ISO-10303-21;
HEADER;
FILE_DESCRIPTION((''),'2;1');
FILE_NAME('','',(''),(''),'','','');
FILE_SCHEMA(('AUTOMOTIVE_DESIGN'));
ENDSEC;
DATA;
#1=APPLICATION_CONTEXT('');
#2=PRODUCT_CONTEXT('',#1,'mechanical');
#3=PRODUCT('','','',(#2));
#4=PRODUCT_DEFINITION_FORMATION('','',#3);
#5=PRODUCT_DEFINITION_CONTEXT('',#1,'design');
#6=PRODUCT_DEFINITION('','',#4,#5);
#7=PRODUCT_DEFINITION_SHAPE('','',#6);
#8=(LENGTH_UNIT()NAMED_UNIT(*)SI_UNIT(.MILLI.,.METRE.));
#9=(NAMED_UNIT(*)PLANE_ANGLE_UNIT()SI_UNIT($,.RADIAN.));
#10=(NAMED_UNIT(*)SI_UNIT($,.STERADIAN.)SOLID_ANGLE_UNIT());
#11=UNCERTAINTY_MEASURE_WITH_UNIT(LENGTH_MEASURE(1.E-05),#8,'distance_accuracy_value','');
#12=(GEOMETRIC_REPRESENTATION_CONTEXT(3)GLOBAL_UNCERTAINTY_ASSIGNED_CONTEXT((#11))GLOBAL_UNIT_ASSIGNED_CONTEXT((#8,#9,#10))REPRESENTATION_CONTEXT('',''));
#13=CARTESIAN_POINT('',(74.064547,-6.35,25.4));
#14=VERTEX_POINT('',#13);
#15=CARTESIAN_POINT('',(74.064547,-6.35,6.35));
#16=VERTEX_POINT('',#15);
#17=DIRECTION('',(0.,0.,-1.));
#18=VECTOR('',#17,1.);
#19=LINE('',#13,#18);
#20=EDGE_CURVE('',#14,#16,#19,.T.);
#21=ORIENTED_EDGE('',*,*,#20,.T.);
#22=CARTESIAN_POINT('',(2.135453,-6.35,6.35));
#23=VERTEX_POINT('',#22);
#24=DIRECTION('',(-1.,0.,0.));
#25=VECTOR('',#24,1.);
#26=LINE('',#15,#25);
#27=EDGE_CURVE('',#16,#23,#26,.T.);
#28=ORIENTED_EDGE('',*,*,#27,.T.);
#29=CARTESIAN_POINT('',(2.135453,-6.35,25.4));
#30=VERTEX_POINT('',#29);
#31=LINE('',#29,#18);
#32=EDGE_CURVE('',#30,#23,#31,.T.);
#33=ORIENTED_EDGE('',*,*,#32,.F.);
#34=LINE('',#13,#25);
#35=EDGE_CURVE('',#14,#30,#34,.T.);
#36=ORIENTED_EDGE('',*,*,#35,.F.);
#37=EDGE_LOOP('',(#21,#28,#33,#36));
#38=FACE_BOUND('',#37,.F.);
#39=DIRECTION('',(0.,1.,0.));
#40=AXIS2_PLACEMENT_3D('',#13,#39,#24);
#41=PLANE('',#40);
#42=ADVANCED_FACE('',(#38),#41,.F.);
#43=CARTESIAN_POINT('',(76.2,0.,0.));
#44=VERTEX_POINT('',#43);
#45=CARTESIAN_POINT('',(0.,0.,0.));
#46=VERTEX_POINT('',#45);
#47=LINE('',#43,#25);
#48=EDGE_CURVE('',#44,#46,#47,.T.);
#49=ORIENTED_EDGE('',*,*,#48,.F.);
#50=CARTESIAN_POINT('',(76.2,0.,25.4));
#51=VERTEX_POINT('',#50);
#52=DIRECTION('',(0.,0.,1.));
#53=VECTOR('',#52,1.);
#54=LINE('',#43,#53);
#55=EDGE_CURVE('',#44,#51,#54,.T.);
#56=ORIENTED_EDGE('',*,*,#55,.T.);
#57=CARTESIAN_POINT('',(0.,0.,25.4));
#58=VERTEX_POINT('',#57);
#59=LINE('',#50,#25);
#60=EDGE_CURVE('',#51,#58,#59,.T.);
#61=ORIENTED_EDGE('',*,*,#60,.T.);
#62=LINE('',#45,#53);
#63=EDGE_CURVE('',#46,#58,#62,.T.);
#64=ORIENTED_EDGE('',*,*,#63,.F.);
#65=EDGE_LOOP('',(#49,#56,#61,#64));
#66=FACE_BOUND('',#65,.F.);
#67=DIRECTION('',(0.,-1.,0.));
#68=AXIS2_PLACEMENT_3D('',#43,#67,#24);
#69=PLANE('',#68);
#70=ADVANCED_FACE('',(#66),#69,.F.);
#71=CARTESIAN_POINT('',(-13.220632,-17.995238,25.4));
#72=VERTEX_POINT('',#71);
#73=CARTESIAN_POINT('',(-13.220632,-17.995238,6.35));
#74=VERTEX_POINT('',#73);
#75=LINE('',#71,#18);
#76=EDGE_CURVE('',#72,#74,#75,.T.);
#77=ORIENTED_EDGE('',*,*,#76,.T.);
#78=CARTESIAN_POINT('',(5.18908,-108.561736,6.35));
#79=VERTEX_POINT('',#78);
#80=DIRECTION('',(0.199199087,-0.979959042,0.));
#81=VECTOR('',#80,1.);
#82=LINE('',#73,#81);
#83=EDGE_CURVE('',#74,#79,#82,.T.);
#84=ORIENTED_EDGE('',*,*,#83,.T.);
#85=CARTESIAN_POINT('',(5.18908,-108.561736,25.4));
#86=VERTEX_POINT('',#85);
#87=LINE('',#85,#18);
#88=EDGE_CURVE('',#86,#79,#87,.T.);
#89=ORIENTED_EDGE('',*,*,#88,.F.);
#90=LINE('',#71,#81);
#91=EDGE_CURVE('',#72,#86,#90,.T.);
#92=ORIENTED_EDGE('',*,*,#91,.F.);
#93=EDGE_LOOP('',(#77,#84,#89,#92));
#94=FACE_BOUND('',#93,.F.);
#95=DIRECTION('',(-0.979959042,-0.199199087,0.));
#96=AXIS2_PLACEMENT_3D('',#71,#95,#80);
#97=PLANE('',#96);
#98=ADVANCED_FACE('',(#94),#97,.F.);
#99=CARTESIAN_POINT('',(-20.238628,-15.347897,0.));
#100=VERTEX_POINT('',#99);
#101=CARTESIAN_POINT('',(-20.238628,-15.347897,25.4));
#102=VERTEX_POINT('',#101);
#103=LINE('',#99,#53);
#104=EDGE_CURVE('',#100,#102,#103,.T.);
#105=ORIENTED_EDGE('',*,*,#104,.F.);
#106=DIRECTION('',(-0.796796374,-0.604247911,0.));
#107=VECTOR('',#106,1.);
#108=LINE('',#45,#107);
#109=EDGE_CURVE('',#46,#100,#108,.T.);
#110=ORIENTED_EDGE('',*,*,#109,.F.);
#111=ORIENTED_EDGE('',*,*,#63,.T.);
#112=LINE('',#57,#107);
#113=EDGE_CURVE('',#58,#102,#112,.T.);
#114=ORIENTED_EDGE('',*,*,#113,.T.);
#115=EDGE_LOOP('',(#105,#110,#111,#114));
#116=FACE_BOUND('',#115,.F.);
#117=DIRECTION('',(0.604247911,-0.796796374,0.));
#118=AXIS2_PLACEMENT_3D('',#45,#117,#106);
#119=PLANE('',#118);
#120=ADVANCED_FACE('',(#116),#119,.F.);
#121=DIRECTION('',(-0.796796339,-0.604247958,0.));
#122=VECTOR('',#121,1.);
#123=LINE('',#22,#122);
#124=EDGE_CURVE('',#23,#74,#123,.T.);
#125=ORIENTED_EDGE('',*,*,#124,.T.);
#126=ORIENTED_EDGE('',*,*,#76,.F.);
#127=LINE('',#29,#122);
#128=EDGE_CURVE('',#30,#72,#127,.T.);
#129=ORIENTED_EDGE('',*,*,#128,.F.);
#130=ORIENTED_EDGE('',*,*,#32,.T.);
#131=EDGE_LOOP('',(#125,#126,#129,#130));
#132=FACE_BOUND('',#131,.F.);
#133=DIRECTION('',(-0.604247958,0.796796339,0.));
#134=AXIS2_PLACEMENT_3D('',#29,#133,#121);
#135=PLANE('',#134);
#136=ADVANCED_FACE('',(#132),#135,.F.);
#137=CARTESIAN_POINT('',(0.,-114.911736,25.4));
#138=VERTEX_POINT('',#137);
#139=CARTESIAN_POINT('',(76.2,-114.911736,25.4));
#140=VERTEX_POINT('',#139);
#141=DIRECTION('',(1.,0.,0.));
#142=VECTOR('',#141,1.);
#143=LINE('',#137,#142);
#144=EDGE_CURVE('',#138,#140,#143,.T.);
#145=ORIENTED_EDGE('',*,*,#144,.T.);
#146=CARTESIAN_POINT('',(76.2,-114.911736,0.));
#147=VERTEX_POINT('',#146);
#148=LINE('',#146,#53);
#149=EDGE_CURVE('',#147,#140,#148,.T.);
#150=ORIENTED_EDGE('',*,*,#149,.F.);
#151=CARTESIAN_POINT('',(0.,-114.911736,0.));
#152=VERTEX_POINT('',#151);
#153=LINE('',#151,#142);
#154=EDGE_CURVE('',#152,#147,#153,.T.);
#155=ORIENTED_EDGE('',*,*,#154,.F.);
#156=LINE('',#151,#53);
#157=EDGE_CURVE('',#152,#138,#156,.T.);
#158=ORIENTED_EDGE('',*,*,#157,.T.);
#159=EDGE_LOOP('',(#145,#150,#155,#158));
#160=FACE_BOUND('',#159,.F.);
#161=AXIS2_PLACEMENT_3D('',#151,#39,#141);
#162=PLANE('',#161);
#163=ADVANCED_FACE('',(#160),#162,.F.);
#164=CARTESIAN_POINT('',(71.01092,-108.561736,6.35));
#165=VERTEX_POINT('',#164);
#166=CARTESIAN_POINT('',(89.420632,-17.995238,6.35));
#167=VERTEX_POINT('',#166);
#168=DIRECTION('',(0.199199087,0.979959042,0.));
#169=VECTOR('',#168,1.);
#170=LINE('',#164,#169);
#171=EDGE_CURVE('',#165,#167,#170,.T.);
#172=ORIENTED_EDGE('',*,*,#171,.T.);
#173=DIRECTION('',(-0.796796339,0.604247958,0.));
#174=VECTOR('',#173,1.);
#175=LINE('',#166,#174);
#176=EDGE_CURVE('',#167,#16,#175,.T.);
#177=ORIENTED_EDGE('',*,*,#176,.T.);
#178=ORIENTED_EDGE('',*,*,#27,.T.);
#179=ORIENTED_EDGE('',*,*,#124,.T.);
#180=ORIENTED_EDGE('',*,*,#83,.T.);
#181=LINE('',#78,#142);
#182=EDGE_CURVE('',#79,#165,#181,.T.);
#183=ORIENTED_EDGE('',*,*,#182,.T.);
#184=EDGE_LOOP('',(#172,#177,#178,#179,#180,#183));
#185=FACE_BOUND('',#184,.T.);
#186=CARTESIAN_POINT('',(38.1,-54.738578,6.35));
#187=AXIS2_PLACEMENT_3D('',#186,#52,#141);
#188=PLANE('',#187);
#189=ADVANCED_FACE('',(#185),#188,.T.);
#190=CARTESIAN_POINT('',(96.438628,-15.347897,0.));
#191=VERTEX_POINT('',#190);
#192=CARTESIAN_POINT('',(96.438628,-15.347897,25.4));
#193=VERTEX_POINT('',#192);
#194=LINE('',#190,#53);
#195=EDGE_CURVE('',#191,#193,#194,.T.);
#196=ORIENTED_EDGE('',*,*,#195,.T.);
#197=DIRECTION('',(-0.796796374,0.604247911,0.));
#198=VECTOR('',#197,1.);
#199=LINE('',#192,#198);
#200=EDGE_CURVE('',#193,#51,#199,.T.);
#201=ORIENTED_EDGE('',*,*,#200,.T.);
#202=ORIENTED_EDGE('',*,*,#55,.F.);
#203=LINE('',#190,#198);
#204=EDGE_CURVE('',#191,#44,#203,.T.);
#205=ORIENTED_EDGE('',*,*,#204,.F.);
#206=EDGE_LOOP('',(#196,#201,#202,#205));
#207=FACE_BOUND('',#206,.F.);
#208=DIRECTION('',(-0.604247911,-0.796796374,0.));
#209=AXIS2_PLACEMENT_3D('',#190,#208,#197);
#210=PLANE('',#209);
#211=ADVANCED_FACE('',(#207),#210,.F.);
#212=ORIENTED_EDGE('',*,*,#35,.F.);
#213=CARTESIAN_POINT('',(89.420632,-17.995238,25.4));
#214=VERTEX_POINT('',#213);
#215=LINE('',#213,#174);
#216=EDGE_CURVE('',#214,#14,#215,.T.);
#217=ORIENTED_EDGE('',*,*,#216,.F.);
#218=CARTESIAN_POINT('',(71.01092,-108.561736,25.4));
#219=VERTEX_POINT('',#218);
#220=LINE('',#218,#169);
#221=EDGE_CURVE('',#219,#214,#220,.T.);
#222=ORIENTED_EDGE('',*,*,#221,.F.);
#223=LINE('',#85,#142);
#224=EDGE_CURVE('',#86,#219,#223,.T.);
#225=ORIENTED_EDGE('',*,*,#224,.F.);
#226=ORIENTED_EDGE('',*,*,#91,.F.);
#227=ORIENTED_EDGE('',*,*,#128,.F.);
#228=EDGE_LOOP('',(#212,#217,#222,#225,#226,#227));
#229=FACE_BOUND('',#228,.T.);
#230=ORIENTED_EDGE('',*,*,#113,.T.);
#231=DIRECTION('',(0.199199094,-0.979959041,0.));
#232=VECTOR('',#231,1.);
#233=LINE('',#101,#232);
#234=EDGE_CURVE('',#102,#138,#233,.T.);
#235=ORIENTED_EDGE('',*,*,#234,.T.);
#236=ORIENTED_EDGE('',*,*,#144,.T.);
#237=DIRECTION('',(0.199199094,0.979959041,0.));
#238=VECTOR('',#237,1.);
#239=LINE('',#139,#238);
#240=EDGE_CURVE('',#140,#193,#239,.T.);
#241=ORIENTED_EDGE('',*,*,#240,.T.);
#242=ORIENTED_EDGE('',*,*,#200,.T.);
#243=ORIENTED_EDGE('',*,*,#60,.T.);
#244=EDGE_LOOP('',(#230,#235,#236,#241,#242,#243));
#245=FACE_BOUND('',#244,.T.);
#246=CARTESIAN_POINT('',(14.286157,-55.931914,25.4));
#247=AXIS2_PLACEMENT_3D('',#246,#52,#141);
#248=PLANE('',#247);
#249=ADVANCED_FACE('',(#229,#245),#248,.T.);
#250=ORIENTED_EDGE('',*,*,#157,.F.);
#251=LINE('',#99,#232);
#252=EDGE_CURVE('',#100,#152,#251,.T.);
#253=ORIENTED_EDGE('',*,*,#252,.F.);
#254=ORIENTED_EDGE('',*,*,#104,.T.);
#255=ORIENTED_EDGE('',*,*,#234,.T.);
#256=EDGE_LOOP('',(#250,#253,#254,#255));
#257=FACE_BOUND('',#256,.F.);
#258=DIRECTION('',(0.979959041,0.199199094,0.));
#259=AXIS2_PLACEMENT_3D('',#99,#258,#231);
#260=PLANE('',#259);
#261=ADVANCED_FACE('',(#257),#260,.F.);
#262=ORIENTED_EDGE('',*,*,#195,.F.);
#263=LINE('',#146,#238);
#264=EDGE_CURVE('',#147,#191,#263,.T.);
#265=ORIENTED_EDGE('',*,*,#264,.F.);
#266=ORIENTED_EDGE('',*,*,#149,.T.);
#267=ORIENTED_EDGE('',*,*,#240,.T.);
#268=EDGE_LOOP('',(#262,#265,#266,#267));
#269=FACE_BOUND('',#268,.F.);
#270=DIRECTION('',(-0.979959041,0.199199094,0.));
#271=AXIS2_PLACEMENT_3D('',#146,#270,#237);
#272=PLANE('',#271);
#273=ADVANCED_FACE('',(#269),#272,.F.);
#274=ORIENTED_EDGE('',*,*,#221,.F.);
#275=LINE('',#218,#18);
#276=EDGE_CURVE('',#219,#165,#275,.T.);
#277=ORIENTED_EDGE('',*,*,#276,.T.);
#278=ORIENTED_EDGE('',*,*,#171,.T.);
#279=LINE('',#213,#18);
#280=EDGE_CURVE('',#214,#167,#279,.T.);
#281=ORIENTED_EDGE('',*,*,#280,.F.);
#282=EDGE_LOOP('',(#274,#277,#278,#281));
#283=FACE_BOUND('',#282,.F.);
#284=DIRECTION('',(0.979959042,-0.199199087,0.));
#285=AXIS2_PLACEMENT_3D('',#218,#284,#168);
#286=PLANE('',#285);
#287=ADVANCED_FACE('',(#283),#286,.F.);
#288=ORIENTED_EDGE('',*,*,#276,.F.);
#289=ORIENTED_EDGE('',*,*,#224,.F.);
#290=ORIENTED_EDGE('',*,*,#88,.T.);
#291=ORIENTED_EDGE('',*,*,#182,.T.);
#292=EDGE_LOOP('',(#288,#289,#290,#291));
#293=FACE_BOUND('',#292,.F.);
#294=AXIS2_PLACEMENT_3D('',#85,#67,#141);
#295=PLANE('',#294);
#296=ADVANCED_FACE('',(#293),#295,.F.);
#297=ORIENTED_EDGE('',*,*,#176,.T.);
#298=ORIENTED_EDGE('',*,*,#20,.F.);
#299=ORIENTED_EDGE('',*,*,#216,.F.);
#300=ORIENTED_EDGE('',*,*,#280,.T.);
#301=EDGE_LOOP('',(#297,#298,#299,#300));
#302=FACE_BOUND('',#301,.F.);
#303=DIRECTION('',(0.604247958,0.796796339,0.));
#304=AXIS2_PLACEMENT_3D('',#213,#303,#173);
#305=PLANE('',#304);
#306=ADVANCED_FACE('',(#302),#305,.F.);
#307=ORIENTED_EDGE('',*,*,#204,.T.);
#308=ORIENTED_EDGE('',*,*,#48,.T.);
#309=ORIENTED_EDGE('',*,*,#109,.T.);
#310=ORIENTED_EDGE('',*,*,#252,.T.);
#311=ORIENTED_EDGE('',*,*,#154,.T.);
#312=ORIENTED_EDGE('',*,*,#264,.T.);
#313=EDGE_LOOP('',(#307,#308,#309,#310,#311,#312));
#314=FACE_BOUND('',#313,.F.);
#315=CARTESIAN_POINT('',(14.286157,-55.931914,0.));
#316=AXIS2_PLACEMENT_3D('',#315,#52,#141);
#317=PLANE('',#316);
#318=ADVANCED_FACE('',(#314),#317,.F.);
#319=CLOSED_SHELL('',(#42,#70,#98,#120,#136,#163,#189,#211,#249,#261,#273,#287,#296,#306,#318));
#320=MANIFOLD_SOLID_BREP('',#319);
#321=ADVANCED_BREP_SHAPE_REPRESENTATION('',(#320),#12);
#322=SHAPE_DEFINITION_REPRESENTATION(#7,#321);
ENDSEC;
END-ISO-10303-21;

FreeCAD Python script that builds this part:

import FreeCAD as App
import Part
import Sketcher

V = App.Vector
Q = App.Units.Quantity


def add_polygon(sketch, points):
    """Adds a closed chain of lines whose ends are joined by coincident constraints."""
    first, n = sketch.GeometryCount, len(points)
    for a, b in zip(points, points[1:] + points[:1]):
        sketch.addGeometry(Part.LineSegment(App.Vector(*a, 0), App.Vector(*b, 0)), False)
    for i in range(n):
        sketch.addConstraint(Sketcher.Constraint("Coincident", first + i, 2, first + (i + 1) % n, 1))

doc = App.newDocument("Part")
body = doc.addObject("PartDesign::Body", "Body")

# Sketch on XY plane
sketch1 = doc.addObject("Sketcher::SketchObject", "Sketch")
body.addObject(sketch1)
sketch1.AttachmentSupport = (doc.XY_Plane, [""])
sketch1.MapMode = "FlatFace"
add_polygon(sketch1, [(0, 0), (-20, -15), (0, -115), (76, -115), (96, -15), (76, 0)])  # lines 0-5
sketch1.addConstraint([
    Sketcher.Constraint("Horizontal", 2),
    Sketcher.Constraint("Horizontal", 5),
    Sketcher.Constraint("Coincident", 5, 2, -1, 1),
    Sketcher.Constraint("PointOnObject", 1, 2, -2),
    Sketcher.Constraint("Horizontal", 0, 2, 3, 2),
    Sketcher.Constraint("Vertical", 2, 2, 4, 2),
    Sketcher.Constraint("Equal", 1, 3),
    Sketcher.Constraint("DistanceX", 2, 1, 2, 2, Q("3 in")),
    Sketcher.Constraint("Distance", 0, Q("1 in")),
    Sketcher.Constraint("Distance", 1, Q("4 in")),
    Sketcher.Constraint("DistanceY", 1, 2, 0, 2, Q("99.563839 mm")),
])
pad1 = doc.addObject("PartDesign::Pad", "Pad")
body.addObject(pad1)
pad1.Profile = sketch1
pad1.Length = Q("1 in")

# Sketch on XY plane
sketch2 = doc.addObject("Sketcher::SketchObject", "Sketch001")
body.addObject(sketch2)
sketch2.AttachmentSupport = (doc.XY_Plane, [""])
sketch2.MapMode = "FlatFace"
sketch2.AttachmentOffset = App.Placement(V(0, 0, 1 * 25.4), App.Rotation())
add_polygon(sketch2, [(2, -6), (-13, -18), (5, -109), (71, -109), (89, -18), (74, -6)])  # lines 0-5
sketch2.addConstraint([
    Sketcher.Constraint("Horizontal", 2),
    Sketcher.Constraint("Horizontal", 5),
    Sketcher.Constraint("Horizontal", 0, 2, 3, 2),
    Sketcher.Constraint("Equal", 1, 3),
    Sketcher.Constraint("Equal", 0, 4),
    Sketcher.Constraint("DistanceY", 4, 2, -1, 1, Q("0.25 in")),
    Sketcher.Constraint("DistanceX", 2, 1, 2, 2, Q("65.82184 mm")),
    Sketcher.Constraint("DistanceX", 5, 2, 5, 1, Q("71.929094 mm")),
    Sketcher.Constraint("DistanceY", 0, 2, -1, 1, Q("17.995238 mm")),
    Sketcher.Constraint("DistanceX", -1, 1, 1, 2, Q("5.18908 mm")),
    Sketcher.Constraint("DistanceX", -1, 1, 3, 2, Q("89.420632 mm")),
    Sketcher.Constraint("Distance", 1, Q("92.418656 mm")),
])
pocket1 = doc.addObject("PartDesign::Pocket", "Pocket")
body.addObject(pocket1)
pocket1.Profile = sketch2
pocket1.Length = Q("0.75 in")

doc.recompute()
